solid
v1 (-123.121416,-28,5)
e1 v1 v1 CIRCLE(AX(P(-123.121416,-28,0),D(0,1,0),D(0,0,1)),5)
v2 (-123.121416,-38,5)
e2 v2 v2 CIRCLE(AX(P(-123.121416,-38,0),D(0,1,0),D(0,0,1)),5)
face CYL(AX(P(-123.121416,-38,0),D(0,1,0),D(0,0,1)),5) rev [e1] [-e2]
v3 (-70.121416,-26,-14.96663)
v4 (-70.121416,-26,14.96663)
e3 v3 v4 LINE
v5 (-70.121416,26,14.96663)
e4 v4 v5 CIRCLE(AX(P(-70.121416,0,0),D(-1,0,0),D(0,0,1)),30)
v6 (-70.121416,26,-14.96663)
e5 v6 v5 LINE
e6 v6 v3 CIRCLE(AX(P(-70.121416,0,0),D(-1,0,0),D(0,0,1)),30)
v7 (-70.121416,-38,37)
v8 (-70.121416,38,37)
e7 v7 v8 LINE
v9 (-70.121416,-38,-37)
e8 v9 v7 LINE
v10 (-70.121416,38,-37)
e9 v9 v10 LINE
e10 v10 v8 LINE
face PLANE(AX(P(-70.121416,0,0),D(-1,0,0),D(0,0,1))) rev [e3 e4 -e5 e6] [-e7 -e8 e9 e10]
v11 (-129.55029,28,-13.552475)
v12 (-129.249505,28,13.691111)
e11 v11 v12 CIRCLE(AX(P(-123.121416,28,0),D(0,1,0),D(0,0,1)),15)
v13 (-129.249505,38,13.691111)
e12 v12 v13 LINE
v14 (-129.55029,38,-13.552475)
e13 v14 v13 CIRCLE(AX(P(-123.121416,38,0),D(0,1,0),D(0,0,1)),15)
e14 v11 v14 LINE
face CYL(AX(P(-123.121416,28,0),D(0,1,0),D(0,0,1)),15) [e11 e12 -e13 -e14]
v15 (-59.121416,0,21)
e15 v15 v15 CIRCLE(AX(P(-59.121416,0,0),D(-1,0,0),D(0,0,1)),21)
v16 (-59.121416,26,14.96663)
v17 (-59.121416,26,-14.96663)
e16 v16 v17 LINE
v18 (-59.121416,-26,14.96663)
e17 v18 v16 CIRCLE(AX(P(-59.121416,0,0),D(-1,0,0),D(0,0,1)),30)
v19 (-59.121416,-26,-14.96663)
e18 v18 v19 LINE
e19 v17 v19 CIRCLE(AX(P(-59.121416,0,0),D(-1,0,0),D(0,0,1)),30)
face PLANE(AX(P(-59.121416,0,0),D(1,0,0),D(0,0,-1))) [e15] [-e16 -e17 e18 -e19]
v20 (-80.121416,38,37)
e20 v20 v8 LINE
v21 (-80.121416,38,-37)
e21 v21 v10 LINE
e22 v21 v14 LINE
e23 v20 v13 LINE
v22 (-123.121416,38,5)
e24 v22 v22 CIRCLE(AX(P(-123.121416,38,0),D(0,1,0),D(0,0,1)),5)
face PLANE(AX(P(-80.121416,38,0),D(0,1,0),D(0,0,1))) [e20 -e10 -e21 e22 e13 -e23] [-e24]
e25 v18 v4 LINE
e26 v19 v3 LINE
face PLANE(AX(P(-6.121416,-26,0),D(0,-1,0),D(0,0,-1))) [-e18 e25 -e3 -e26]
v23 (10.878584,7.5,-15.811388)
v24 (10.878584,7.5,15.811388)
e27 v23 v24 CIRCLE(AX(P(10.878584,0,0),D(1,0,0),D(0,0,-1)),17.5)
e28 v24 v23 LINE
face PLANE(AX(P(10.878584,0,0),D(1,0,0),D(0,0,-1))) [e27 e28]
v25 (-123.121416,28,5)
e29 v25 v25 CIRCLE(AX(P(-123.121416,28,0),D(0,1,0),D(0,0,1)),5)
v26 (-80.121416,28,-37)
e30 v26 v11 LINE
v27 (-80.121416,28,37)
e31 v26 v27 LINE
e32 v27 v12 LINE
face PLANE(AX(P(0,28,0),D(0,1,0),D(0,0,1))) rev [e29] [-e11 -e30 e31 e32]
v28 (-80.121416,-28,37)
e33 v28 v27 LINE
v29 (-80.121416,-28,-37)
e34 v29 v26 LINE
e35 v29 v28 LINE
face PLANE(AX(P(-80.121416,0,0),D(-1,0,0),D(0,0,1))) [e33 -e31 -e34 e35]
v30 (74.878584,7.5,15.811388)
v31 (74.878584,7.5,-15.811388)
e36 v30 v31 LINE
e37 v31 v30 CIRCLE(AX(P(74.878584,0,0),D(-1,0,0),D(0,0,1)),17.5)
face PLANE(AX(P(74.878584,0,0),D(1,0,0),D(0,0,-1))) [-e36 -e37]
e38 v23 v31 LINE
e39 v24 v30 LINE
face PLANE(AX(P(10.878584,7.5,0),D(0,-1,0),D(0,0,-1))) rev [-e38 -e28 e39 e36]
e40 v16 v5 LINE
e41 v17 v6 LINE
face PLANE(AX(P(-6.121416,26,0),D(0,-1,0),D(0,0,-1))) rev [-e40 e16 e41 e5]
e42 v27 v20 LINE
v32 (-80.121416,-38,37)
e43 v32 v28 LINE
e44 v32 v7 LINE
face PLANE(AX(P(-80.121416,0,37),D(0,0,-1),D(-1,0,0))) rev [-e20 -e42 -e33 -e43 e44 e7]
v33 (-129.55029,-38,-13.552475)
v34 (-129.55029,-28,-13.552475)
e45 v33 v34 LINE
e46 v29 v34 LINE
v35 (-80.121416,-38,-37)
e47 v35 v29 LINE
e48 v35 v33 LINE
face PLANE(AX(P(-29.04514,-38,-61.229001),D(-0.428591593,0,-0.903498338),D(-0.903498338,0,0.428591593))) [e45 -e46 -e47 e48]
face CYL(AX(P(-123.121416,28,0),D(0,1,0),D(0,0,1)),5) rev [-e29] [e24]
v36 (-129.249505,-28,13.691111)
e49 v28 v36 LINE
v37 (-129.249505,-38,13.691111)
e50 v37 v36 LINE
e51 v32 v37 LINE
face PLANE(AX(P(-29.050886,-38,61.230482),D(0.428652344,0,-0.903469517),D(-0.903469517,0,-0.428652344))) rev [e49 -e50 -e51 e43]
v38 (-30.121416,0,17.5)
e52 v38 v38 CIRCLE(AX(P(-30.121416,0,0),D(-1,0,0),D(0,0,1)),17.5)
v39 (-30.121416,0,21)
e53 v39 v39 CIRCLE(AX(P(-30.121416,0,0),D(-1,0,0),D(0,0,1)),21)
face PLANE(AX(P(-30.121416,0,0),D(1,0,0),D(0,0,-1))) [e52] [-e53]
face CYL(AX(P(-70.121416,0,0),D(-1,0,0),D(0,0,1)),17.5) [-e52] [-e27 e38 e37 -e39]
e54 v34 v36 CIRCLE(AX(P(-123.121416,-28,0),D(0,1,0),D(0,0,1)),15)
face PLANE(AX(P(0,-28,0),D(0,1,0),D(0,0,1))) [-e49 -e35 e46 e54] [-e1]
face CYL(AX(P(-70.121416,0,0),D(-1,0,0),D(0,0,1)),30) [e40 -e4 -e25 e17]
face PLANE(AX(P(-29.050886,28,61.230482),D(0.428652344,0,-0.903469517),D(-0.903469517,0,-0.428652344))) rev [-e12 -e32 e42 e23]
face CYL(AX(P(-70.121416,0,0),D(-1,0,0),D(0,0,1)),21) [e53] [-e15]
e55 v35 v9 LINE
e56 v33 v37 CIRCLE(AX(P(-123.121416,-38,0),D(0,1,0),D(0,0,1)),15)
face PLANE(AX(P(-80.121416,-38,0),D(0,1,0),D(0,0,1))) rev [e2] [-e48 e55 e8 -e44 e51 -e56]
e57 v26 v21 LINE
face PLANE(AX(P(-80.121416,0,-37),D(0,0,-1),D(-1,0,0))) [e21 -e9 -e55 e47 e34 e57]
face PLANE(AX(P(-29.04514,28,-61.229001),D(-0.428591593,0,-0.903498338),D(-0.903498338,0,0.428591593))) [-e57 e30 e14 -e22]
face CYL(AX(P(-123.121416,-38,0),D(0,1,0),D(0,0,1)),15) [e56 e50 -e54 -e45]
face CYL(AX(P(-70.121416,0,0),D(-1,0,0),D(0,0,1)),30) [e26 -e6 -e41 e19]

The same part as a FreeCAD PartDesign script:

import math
import FreeCAD as App
import Part
import Sketcher
from FreeCAD import Vector


def add_polygon(sketch, points):
    """Adds a closed chain of lines whose ends are joined by coincident constraints."""
    first, n = sketch.GeometryCount, len(points)
    for a, b in zip(points, points[1:] + points[:1]):
        sketch.addGeometry(Part.LineSegment(App.Vector(*a, 0), App.Vector(*b, 0)), False)
    for i in range(n):
        sketch.addConstraint(Sketcher.Constraint("Coincident", first + i, 2, first + (i + 1) % n, 1))

doc = App.newDocument("Part")
params = doc.addObject("Spreadsheet::Sheet", "Params")
for row, (alias, value) in enumerate([
    ("sketch1_width", "145 mm"),
    ("sketch1_width2", "11 mm"),
    ("sketch1_width3", "29 mm"),
    ("sketch1_height", "30 mm"),
    ("sketch1_height2", "9 mm"),
    ("revolution_angle", "360 deg"),
    ("sketch2_radius", "17.5 mm"),
    ("pocket1_length", "64 mm"),
    ("sketch3_radius", "30 mm"),
    ("pocket2_length", "64 mm"),
    ("sketch4_width", "76 mm"),
    ("sketch4_height", "74 mm"),
    ("pad1_length", "10 mm"),
    ("sketch5_diameter", "10 mm"),
    ("sketch5_radius", "15 mm"),
    ("sketch5_height", "74 mm"),
    ("pad2_length", "10 mm"),
    ("sketch6_diameter", "10 mm"),
    ("sketch6_radius", "15 mm"),
    ("sketch6_height", "74 mm"),
    ("pad3_length", "10 mm"),
], start=1):
    params.set(f"A{row}", alias)
    params.set(f"B{row}", "=" + value)
    params.setAlias(f"B{row}", alias)

body = doc.addObject("PartDesign::Body", "Body")

sketch1 = doc.addObject("Sketcher::SketchObject", "Sketch")
body.addObject(sketch1)
sketch1.AttachmentSupport = (doc.XZ_Plane, [""])
sketch1.MapMode = "FlatFace"
add_polygon(sketch1, [(74.9, 0), (-70.1, 0), (-70.1, 30), (-59.1, 30), (-59.1, 21), (-30.1, 21), (-30.1, 17.5), (74.9, 17.5)])
sketch1.addConstraint(Sketcher.Constraint("Horizontal", 0))
sketch1.addConstraint(Sketcher.Constraint("Vertical", 1))
sketch1.addConstraint(Sketcher.Constraint("Horizontal", 2))
sketch1.addConstraint(Sketcher.Constraint("Vertical", 3))
sketch1.addConstraint(Sketcher.Constraint("Horizontal", 4))
sketch1.addConstraint(Sketcher.Constraint("Vertical", 5))
sketch1.addConstraint(Sketcher.Constraint("Horizontal", 6))
sketch1.addConstraint(Sketcher.Constraint("Vertical", 7))
sketch1.addConstraint(Sketcher.Constraint("PointOnObject", 0, 2, -1))
sketch1.addConstraint(Sketcher.Constraint("DistanceX", 0, 2, 0, 1, 145.0))
sketch1.addConstraint(Sketcher.Constraint("DistanceX", 2, 1, 2, 2, 11.0))
sketch1.addConstraint(Sketcher.Constraint("DistanceX", 4, 1, 4, 2, 29.0))
sketch1.addConstraint(Sketcher.Constraint("DistanceY", 1, 1, 1, 2, 30.0))
sketch1.addConstraint(Sketcher.Constraint("DistanceY", 3, 2, 3, 1, 9.0))
sketch1.addConstraint(Sketcher.Constraint("DistanceY", 5, 2, 5, 1, 3.5))
sketch1.addConstraint(Sketcher.Constraint("DistanceX", 0, 2, -1, 1, 70.121416))
sketch1.setExpression("Constraints[17]", "Params.sketch1_width")
sketch1.setExpression("Constraints[18]", "Params.sketch1_width2")
sketch1.setExpression("Constraints[19]", "Params.sketch1_width3")
sketch1.setExpression("Constraints[20]", "Params.sketch1_height")
sketch1.setExpression("Constraints[21]", "Params.sketch1_height2")
revolution = doc.addObject("PartDesign::Revolution", "Revolution")
body.addObject(revolution)
revolution.Profile = sketch1
revolution.ReferenceAxis = (sketch1, ["H_Axis"])
revolution.setExpression("Angle", "Params.revolution_angle")

sketch2 = doc.addObject("Sketcher::SketchObject", "Sketch001")
body.addObject(sketch2)
sketch2.AttachmentSupport = (doc.YZ_Plane, [""])
sketch2.MapMode = "FlatFace"
sketch2.AttachmentOffset = App.Placement(Vector(0, 0, 74.878584), App.Rotation())
sketch2.addGeometry(Part.LineSegment(Vector(8, 16, 0), Vector(8, -16, 0)), False)
sketch2.addGeometry(Part.ArcOfCircle(Part.Circle(Vector(0, 0, 0), Vector(0, 0, 1), 18), math.radians(-65), math.radians(65)), False)
sketch2.addConstraint(Sketcher.Constraint("Coincident", 0, 1, 1, 2))
sketch2.addConstraint(Sketcher.Constraint("Coincident", 1, 1, 0, 2))
sketch2.addConstraint(Sketcher.Constraint("Vertical", 0))
sketch2.addConstraint(Sketcher.Constraint("Coincident", 1, 3, -1, 1))
sketch2.addConstraint(Sketcher.Constraint("Radius", 1, 17.5))
sketch2.addConstraint(Sketcher.Constraint("DistanceX", -1, 1, 0, 1, 7.5))
sketch2.setExpression("Constraints[4]", "Params.sketch2_radius")
pocket1 = doc.addObject("PartDesign::Pocket", "Pocket")
body.addObject(pocket1)
pocket1.Profile = sketch2
pocket1.setExpression("Length", "Params.pocket1_length")

sketch3 = doc.addObject("Sketcher::SketchObject", "Sketch002")
body.addObject(sketch3)
sketch3.AttachmentSupport = (doc.YZ_Plane, [""])
sketch3.MapMode = "FlatFace"
sketch3.AttachmentOffset = App.Placement(Vector(0, 0, -6.121416), App.Rotation())
sketch3.addGeometry(Part.LineSegment(Vector(-26, 15, 0), Vector(-26, -15, 0)), False)
sketch3.addGeometry(Part.ArcOfCircle(Part.Circle(Vector(0, 0, 0), Vector(0, 0, 1), 30), math.radians(150), math.radians(210)), False)
sketch3.addGeometry(Part.ArcOfCircle(Part.Circle(Vector(0, 0, 0), Vector(0, 0, 1), 30), math.radians(-30), math.radians(30)), False)
sketch3.addGeometry(Part.LineSegment(Vector(26, -15, 0), Vector(26, 15, 0)), False)
sketch3.addConstraint(Sketcher.Constraint("Coincident", 0, 1, 1, 1))
sketch3.addConstraint(Sketcher.Constraint("Coincident", 1, 2, 0, 2))
sketch3.addConstraint(Sketcher.Constraint("Coincident", 2, 1, 3, 1))
sketch3.addConstraint(Sketcher.Constraint("Coincident", 3, 2, 2, 2))
sketch3.addConstraint(Sketcher.Constraint("Vertical", 0))
sketch3.addConstraint(Sketcher.Constraint("Vertical", 3))
sketch3.addConstraint(Sketcher.Constraint("Coincident", 1, 3, -1, 1))
sketch3.addConstraint(Sketcher.Constraint("Coincident", 2, 3, -1, 1))
sketch3.addConstraint(Sketcher.Constraint("Equal", 1, 2))
sketch3.addConstraint(Sketcher.Constraint("Horizontal", 1, 2, 2, 1))
sketch3.addConstraint(Sketcher.Constraint("Radius", 1, 30.0))
sketch3.addConstraint(Sketcher.Constraint("DistanceX", 0, 1, -1, 1, 26.0))
sketch3.setExpression("Constraints[10]", "Params.sketch3_radius")
pocket2 = doc.addObject("PartDesign::Pocket", "Pocket001")
body.addObject(pocket2)
pocket2.Profile = sketch3
pocket2.setExpression("Length", "Params.pocket2_length")

sketch4 = doc.addObject("Sketcher::SketchObject", "Sketch003")
body.addObject(sketch4)
sketch4.AttachmentSupport = (doc.YZ_Plane, [""])
sketch4.MapMode = "FlatFace"
sketch4.AttachmentOffset = App.Placement(Vector(0, 0, -70.121416), App.Rotation())
add_polygon(sketch4, [(38, -37), (-38, -37), (-38, 37), (38, 37)])
sketch4.addConstraint(Sketcher.Constraint("Horizontal", 0))
sketch4.addConstraint(Sketcher.Constraint("Vertical", 1))
sketch4.addConstraint(Sketcher.Constraint("Horizontal", 2))
sketch4.addConstraint(Sketcher.Constraint("Vertical", 3))
sketch4.addConstraint(Sketcher.Constraint("Symmetric", 0, 2, 2, 2, -1, 1))
sketch4.addConstraint(Sketcher.Constraint("DistanceX", 0, 2, 0, 1, 76.0))
sketch4.addConstraint(Sketcher.Constraint("DistanceY", 1, 1, 1, 2, 74.0))
sketch4.setExpression("Constraints[9]", "Params.sketch4_width")
sketch4.setExpression("Constraints[10]", "Params.sketch4_height")
pad1 = doc.addObject("PartDesign::Pad", "Pad")
body.addObject(pad1)
pad1.Profile = sketch4
pad1.setExpression("Length", "Params.pad1_length")
pad1.Reversed = True

sketch5 = doc.addObject("Sketcher::SketchObject", "Sketch004")
body.addObject(sketch5)
sketch5.AttachmentSupport = (doc.XZ_Plane, [""])
sketch5.MapMode = "FlatFace"
sketch5.AttachmentOffset = App.Placement(Vector(0, 0, 28), App.Rotation())
sketch5.addGeometry(Part.LineSegment(Vector(-80, -37, 0), Vector(-130, -14, 0)), False)
sketch5.addGeometry(Part.ArcOfCircle(Part.Circle(Vector(-123, 0, 0), Vector(0, 0, 1), 15), math.radians(114), math.radians(245)), False)
sketch5.addGeometry(Part.LineSegment(Vector(-129, 14, 0), Vector(-80, 37, 0)), False)
sketch5.addGeometry(Part.LineSegment(Vector(-80, 37, 0), Vector(-80, -37, 0)), False)
sketch5.addGeometry(Part.Circle(Vector(-123, 0, 0), Vector(0, 0, 1), 5), False)
sketch5.addConstraint(Sketcher.Constraint("Tangent", 0, 2, 1, 2))
sketch5.addConstraint(Sketcher.Constraint("Coincident", 1, 1, 2, 1))
sketch5.addConstraint(Sketcher.Constraint("Coincident", 2, 2, 3, 1))
sketch5.addConstraint(Sketcher.Constraint("Coincident", 3, 2, 0, 1))
sketch5.addConstraint(Sketcher.Constraint("Vertical", 3))
sketch5.addConstraint(Sketcher.Constraint("Coincident", 4, 3, 1, 3))
sketch5.addConstraint(Sketcher.Constraint("PointOnObject", 1, 3, -1))
sketch5.addConstraint(Sketcher.Constraint("Diameter", 4, 10.0))
sketch5.addConstraint(Sketcher.Constraint("Radius", 1, 15.0))
sketch5.addConstraint(Sketcher.Constraint("DistanceY", 3, 2, 3, 1, 74.0))
sketch5.addConstraint(Sketcher.Constraint("DistanceY", -1, 1, 2, 2, 37.0))
sketch5.addConstraint(Sketcher.Constraint("DistanceX", 1, 3, 2, 2, 43.0))
sketch5.addConstraint(Sketcher.Constraint("Distance", 2, 54.377141))
sketch5.addConstraint(Sketcher.Constraint("DistanceX", 0, 2, -1, 1, 129.55029))
sketch5.setExpression("Constraints[7]", "Params.sketch5_diameter")
sketch5.setExpression("Constraints[8]", "Params.sketch5_radius")
sketch5.setExpression("Constraints[9]", "Params.sketch5_height")
pad2 = doc.addObject("PartDesign::Pad", "Pad001")
body.addObject(pad2)
pad2.Profile = sketch5
pad2.setExpression("Length", "Params.pad2_length")

sketch6 = doc.addObject("Sketcher::SketchObject", "Sketch005")
body.addObject(sketch6)
sketch6.AttachmentSupport = (doc.XZ_Plane, [""])
sketch6.MapMode = "FlatFace"
sketch6.AttachmentOffset = App.Placement(Vector(0, 0, -38), App.Rotation())
sketch6.addGeometry(Part.LineSegment(Vector(-80, -37, 0), Vector(-130, -14, 0)), False)
sketch6.addGeometry(Part.ArcOfCircle(Part.Circle(Vector(-123, 0, 0), Vector(0, 0, 1), 15), math.radians(114), math.radians(245)), False)
sketch6.addGeometry(Part.LineSegment(Vector(-129, 14, 0), Vector(-80, 37, 0)), False)
sketch6.addGeometry(Part.LineSegment(Vector(-80, 37, 0), Vector(-80, -37, 0)), False)
sketch6.addGeometry(Part.Circle(Vector(-123, 0, 0), Vector(0, 0, 1), 5), False)
sketch6.addConstraint(Sketcher.Constraint("Tangent", 0, 2, 1, 2))
sketch6.addConstraint(Sketcher.Constraint("Coincident", 1, 1, 2, 1))
sketch6.addConstraint(Sketcher.Constraint("Coincident", 2, 2, 3, 1))
sketch6.addConstraint(Sketcher.Constraint("Coincident", 3, 2, 0, 1))
sketch6.addConstraint(Sketcher.Constraint("Vertical", 3))
sketch6.addConstraint(Sketcher.Constraint("Coincident", 4, 3, 1, 3))
sketch6.addConstraint(Sketcher.Constraint("PointOnObject", 1, 3, -1))
sketch6.addConstraint(Sketcher.Constraint("Diameter", 4, 10.0))
sketch6.addConstraint(Sketcher.Constraint("Radius", 1, 15.0))
sketch6.addConstraint(Sketcher.Constraint("DistanceY", 3, 2, 3, 1, 74.0))
sketch6.addConstraint(Sketcher.Constraint("DistanceY", -1, 1, 2, 2, 37.0))
sketch6.addConstraint(Sketcher.Constraint("DistanceX", 1, 3, 2, 2, 43.0))
sketch6.addConstraint(Sketcher.Constraint("Distance", 2, 54.377141))
sketch6.addConstraint(Sketcher.Constraint("DistanceX", 0, 2, -1, 1, 129.55029))
sketch6.setExpression("Constraints[7]", "Params.sketch6_diameter")
sketch6.setExpression("Constraints[8]", "Params.sketch6_radius")
sketch6.setExpression("Constraints[9]", "Params.sketch6_height")
pad3 = doc.addObject("PartDesign::Pad", "Pad002")
body.addObject(pad3)
pad3.Profile = sketch6
pad3.setExpression("Length", "Params.pad3_length")

doc.recompute()
